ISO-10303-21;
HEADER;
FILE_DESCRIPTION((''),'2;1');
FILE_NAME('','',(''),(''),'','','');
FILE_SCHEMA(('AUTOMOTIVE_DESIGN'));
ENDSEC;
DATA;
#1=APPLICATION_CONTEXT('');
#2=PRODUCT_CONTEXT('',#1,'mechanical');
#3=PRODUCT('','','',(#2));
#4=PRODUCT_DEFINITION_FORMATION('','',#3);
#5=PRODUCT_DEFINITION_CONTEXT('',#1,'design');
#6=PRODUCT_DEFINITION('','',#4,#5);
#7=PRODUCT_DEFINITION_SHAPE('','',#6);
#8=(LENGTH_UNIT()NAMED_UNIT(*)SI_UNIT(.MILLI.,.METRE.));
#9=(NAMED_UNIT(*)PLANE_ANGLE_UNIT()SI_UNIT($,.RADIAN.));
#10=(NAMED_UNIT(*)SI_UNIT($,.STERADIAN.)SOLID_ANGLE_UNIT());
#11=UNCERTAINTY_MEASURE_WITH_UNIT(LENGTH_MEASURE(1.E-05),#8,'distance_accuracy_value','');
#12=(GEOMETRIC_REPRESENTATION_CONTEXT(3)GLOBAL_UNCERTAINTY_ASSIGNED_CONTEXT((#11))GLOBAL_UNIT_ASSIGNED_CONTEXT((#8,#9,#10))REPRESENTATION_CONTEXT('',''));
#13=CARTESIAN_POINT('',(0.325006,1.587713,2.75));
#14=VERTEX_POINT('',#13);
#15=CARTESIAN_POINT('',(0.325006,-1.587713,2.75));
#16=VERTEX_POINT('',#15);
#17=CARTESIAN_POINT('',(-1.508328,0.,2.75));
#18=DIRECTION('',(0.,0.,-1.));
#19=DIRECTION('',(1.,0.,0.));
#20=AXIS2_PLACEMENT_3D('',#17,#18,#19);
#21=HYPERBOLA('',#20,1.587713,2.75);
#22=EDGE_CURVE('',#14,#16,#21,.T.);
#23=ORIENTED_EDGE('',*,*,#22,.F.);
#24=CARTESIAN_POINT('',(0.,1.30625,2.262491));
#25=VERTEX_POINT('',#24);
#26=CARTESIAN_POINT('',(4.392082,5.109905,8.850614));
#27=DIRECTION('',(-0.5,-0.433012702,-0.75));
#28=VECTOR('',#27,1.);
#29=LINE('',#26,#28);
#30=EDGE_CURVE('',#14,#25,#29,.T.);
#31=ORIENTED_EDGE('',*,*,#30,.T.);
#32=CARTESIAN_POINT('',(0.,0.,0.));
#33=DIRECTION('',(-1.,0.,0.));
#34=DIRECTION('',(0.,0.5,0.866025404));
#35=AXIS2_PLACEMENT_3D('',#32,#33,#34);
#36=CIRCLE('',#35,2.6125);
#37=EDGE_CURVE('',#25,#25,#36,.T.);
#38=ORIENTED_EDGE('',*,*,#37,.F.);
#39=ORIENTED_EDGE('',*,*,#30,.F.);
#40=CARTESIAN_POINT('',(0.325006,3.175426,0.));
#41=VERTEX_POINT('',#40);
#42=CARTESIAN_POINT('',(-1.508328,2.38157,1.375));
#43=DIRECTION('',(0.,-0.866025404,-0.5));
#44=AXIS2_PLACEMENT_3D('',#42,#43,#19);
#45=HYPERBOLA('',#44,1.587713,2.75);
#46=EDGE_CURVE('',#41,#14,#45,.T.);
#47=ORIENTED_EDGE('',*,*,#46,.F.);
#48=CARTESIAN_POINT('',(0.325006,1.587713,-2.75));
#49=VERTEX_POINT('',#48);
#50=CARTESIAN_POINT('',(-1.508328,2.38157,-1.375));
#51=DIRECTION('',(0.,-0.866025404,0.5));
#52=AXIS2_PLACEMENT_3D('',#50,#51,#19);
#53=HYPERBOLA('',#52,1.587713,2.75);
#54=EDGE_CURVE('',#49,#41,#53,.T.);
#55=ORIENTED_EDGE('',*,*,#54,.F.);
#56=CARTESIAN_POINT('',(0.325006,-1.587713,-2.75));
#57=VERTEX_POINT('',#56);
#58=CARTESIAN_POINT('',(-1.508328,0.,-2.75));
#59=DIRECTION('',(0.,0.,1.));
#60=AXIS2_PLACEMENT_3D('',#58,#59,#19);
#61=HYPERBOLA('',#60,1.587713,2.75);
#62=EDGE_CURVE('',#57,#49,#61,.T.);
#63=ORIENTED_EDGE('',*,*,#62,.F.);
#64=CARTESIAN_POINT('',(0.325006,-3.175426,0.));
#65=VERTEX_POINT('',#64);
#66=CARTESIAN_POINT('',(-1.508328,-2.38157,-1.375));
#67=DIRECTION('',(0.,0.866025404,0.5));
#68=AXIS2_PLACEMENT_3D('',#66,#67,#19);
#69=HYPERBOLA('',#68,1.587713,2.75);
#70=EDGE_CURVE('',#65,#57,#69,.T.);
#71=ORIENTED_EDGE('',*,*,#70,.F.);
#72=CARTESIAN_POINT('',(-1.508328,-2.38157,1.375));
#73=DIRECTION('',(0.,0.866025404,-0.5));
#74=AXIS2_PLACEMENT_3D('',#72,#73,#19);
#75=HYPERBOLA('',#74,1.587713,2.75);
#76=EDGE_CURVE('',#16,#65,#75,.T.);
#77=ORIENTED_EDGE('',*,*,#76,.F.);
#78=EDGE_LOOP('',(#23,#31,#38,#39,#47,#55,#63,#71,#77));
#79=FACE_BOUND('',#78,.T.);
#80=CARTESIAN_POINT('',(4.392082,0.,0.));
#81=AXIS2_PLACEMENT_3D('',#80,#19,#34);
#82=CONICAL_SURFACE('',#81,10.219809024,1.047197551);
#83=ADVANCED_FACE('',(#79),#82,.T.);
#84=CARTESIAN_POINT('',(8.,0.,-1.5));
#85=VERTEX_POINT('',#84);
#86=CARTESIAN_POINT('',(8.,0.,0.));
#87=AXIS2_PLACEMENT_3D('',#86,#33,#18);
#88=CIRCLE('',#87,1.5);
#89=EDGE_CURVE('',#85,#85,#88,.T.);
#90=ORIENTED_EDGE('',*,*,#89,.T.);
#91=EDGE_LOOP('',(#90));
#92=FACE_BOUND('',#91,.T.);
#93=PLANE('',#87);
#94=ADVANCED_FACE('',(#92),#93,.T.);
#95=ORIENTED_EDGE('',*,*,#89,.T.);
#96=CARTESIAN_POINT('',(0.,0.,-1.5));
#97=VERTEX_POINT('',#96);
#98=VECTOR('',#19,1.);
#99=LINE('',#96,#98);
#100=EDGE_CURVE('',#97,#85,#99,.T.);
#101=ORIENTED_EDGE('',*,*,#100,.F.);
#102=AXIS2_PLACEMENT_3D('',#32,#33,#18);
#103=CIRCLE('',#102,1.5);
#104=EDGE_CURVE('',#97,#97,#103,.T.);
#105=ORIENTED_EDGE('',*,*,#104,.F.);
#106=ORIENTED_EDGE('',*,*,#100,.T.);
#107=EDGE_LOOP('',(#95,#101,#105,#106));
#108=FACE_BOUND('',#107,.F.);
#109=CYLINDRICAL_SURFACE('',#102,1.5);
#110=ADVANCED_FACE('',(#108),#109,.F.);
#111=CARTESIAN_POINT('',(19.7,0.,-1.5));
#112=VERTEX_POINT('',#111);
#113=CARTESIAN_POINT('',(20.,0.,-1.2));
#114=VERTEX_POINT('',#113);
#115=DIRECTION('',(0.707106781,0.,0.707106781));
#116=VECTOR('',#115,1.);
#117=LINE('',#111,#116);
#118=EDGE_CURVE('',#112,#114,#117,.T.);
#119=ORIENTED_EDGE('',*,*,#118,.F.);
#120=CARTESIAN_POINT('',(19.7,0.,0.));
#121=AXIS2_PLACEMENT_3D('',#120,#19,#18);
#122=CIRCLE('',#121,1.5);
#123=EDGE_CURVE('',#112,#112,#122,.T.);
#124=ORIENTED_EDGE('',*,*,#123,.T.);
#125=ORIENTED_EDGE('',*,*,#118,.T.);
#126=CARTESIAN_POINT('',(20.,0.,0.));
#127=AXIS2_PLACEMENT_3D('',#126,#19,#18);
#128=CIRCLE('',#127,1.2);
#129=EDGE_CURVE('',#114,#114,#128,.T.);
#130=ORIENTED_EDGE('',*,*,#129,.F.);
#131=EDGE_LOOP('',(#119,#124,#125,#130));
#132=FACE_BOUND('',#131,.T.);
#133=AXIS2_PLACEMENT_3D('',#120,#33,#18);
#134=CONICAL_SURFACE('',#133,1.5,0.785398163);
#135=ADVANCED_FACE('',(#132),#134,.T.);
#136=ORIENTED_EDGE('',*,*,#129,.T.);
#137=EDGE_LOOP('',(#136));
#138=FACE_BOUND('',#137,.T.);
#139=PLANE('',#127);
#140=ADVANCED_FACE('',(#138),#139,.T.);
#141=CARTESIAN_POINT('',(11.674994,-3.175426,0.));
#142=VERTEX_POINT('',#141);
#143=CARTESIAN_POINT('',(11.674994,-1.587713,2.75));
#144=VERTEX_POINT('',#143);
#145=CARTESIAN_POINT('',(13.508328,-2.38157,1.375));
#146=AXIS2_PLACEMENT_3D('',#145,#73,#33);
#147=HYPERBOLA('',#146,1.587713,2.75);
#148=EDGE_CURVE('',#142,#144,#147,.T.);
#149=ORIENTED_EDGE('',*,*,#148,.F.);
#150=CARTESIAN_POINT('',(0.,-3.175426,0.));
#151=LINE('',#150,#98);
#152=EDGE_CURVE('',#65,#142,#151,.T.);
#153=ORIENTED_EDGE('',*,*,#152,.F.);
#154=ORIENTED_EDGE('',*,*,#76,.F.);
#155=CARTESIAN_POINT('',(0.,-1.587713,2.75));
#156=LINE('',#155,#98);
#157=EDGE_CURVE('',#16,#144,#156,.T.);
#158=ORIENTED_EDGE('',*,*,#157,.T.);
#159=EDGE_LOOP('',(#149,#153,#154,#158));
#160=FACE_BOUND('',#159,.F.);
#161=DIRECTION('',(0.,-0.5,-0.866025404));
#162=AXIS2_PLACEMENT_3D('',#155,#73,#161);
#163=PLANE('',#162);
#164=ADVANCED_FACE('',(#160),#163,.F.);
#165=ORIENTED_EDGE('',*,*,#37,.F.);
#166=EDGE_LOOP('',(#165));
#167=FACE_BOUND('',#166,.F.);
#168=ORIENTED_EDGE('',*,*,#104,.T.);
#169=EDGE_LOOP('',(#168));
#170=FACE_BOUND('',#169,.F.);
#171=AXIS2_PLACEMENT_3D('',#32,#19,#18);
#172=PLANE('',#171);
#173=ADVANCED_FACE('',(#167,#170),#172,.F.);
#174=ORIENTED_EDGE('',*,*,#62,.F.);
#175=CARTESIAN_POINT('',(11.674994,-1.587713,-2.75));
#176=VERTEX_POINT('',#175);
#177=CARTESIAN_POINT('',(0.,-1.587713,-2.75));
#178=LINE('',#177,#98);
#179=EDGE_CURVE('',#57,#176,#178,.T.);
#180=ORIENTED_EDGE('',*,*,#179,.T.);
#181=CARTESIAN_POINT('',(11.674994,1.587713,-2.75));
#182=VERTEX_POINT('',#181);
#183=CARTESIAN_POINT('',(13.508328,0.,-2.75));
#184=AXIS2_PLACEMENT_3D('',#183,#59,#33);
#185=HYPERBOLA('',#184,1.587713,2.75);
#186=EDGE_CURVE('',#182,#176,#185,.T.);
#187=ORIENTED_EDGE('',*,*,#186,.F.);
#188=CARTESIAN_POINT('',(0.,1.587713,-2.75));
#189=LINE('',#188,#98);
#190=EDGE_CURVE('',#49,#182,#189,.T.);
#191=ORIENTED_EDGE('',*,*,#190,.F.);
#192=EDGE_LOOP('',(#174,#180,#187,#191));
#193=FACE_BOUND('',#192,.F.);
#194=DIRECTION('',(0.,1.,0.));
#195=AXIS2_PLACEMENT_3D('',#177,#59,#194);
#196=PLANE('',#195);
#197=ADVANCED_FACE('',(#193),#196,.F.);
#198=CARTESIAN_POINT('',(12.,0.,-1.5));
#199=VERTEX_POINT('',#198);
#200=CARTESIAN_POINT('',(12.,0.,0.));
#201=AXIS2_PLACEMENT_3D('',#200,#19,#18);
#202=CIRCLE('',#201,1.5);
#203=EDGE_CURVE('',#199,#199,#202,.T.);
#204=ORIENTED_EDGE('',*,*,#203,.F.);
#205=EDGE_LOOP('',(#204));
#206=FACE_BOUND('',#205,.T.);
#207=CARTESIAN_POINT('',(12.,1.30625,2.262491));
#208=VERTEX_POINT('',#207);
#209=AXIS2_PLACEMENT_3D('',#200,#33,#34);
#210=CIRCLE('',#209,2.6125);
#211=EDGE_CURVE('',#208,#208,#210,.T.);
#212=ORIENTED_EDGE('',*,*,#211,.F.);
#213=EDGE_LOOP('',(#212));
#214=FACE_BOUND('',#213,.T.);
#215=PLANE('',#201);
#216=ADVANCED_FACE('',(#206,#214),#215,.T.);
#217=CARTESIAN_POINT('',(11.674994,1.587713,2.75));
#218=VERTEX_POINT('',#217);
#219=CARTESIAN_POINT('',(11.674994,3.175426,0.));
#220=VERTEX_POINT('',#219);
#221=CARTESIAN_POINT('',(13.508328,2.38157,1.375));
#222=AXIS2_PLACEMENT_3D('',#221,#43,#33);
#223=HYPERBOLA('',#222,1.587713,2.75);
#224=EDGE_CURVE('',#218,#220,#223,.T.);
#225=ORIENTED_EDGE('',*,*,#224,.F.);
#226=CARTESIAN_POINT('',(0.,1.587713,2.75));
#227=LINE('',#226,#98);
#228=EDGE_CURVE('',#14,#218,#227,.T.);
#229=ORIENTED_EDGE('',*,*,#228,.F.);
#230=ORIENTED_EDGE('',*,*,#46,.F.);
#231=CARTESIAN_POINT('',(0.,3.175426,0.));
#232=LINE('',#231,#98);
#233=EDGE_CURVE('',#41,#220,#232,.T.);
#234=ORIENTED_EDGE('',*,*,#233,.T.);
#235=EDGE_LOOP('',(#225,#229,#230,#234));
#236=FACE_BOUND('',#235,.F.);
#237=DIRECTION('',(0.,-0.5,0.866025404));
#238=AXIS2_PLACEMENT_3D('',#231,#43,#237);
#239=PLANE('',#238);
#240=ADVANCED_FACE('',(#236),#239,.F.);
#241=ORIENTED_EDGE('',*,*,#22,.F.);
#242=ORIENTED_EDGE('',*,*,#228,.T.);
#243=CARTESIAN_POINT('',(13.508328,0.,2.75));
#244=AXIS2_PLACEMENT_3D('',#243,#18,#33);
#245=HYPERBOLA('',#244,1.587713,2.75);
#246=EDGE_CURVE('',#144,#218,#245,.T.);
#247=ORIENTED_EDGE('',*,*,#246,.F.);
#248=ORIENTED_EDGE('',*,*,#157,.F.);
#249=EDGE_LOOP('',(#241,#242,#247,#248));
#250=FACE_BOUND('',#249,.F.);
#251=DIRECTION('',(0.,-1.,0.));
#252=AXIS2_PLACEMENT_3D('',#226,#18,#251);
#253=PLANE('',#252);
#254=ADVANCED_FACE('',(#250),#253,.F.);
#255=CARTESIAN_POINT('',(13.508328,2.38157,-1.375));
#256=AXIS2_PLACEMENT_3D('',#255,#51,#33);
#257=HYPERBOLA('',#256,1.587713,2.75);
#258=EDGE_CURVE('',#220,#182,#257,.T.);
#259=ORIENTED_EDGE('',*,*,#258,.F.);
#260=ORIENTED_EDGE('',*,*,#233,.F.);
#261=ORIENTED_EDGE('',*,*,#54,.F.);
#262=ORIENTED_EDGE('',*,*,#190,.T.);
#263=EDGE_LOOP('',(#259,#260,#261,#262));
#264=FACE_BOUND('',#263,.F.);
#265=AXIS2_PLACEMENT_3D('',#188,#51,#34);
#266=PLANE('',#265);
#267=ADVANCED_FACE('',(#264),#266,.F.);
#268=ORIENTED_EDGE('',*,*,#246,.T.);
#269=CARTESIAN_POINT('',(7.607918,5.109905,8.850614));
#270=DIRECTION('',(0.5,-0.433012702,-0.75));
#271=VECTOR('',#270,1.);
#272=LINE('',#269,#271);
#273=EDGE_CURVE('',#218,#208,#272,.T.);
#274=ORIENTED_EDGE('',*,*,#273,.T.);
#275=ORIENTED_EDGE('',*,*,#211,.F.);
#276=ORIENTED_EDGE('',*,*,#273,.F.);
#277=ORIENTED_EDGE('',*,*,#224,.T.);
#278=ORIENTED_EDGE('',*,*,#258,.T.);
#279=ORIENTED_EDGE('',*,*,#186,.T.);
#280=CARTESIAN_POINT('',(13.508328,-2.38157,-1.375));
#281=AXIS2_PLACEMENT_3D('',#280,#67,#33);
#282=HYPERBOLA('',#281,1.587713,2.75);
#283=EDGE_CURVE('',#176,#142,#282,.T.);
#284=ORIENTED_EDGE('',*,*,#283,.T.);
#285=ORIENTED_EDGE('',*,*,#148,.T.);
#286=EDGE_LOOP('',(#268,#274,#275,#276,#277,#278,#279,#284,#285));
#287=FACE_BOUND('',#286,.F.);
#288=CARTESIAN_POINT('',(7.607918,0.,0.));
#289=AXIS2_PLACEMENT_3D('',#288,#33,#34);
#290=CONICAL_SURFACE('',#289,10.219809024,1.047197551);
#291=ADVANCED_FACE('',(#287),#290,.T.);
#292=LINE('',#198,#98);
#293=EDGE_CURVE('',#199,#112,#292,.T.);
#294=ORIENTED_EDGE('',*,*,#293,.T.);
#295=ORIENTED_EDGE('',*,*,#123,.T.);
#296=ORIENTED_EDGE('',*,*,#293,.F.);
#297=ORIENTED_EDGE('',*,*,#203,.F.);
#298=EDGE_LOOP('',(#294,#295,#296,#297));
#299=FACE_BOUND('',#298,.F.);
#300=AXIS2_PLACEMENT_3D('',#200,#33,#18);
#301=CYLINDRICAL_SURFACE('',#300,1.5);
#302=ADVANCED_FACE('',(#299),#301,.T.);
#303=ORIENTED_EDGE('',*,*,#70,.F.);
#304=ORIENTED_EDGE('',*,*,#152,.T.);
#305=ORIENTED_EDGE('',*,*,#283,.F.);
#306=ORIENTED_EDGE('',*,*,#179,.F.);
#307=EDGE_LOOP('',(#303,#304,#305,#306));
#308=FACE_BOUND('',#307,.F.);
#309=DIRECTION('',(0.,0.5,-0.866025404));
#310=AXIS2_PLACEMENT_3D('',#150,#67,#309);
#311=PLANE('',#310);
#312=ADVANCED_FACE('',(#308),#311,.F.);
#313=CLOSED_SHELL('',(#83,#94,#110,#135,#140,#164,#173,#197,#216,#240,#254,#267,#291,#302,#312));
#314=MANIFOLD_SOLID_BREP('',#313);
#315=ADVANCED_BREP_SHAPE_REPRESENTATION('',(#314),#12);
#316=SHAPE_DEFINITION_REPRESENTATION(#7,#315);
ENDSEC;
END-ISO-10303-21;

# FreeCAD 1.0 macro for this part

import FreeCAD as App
import Part
import Sketcher
from FreeCAD import Vector
Q = App.Units.Quantity


def edges_at(feature, points):
    """Names of the edges that pass closest to the given points."""
    edges = feature.Shape.Edges
    near = lambda p: min(range(len(edges)), key=lambda i: edges[i].distToShape(Part.Vertex(*p))[0])
    return sorted({f"Edge{near(p) + 1}" for p in points})


def add_polygon(sketch, points):
    """Adds a closed chain of lines whose ends are joined by coincident constraints."""
    first, n = sketch.GeometryCount, len(points)
    for a, b in zip(points, points[1:] + points[:1]):
        sketch.addGeometry(Part.LineSegment(App.Vector(*a, 0), App.Vector(*b, 0)), False)
    for i in range(n):
        sketch.addConstraint(Sketcher.Constraint("Coincident", first + i, 2, first + (i + 1) % n, 1))

doc = App.newDocument("Part")
body = doc.addObject("PartDesign::Body", "Body")

# Sketch on YZ plane
sketch1 = body.newObject("Sketcher::SketchObject", "Sketch")
sketch1.AttachmentSupport = (doc.getObject("YZ_Plane"), [""])
sketch1.MapMode = "FlatFace"
add_polygon(sketch1, [(3.2, 0), (1.6, 2.8), (-1.6, 2.8), (-3.2, 0), (-1.6, -2.8), (1.6, -2.8)])  # lines 0-5
sketch1.addConstraint([
    Sketcher.Constraint("Horizontal", 1),
    Sketcher.Constraint("Horizontal", 4),
    Sketcher.Constraint("Symmetric", 0, 2, 3, 2, -1, 1),
    Sketcher.Constraint("Symmetric", 2, 2, 5, 2, -1, 1),
    Sketcher.Constraint("PointOnObject", 2, 2, -1),
    Sketcher.Constraint("Parallel", 2, 5),
    Sketcher.Constraint("Vertical", 1, 2, 3, 2),
    Sketcher.Constraint("Angle", 0, Q("120 deg")),
    Sketcher.Constraint("DistanceY", 3, 2, 1, 2, Q("5.5 mm")),
    Sketcher.Constraint("DistanceX", 1, 2, 1, 1, Q("3.175426 mm")),
])
pad1 = body.newObject("PartDesign::Pad", "Pad")
pad1.Profile = sketch1
pad1.Length = 12

# Sketch on YZ plane
sketch2 = body.newObject("Sketcher::SketchObject", "Sketch001")
sketch2.AttachmentSupport = (doc.getObject("YZ_Plane"), [""])
sketch2.MapMode = "FlatFace"
sketch2.AttachmentOffset = App.Placement(Vector(0, 0, 12), App.Rotation())
sketch2.addGeometry(Part.Circle(Vector(0, 0, 0), Vector(0, 0, 1), 1.5), False)
sketch2.addConstraint([
    Sketcher.Constraint("Coincident", 0, 3, -1, 1),
    Sketcher.Constraint("Diameter", 0, Q("3 mm")),
])
pad2 = body.newObject("PartDesign::Pad", "Pad001")
pad2.Profile = sketch2
pad2.Length = 8

# Sketch on YZ plane
sketch3 = body.newObject("Sketcher::SketchObject", "Sketch002")
sketch3.AttachmentSupport = (doc.getObject("YZ_Plane"), [""])
sketch3.MapMode = "FlatFace"
sketch3.addGeometry(Part.Circle(Vector(0, 0, 0), Vector(0, 0, 1), 1.5), False)
sketch3.addConstraint([
    Sketcher.Constraint("Coincident", 0, 3, -1, 1),
    Sketcher.Constraint("Diameter", 0, Q("3 mm")),
])
pocket1 = body.newObject("PartDesign::Pocket", "Pocket")
pocket1.Profile = sketch3
pocket1.Length = 8
pocket1.Reversed = True

# Sketch on XZ plane
sketch4 = body.newObject("Sketcher::SketchObject", "Sketch003")
sketch4.AttachmentSupport = (doc.getObject("XZ_Plane"), [""])
sketch4.MapMode = "FlatFace"
add_polygon(sketch4, [(4.4, -10.2), (0, -10.2), (0, -2.6)])  # lines 0-2
add_polygon(sketch4, [(12, -2.6), (12, -10.2), (7.6, -10.2)])  # lines 3-5
sketch4.addConstraint([
    Sketcher.Constraint("Horizontal", 0),
    Sketcher.Constraint("Vertical", 1),
    Sketcher.Constraint("Vertical", 3),
    Sketcher.Constraint("Horizontal", 4),
    Sketcher.Constraint("PointOnObject", 0, 2, -2),
    Sketcher.Constraint("Horizontal", 2, 2, 3, 2),
    Sketcher.Constraint("Horizontal", 1, 2, 5, 2),
    Sketcher.Constraint("Equal", 0, 4),
    Sketcher.Constraint("Angle", 2, Q("-60 deg")),
    Sketcher.Constraint("DistanceX", -1, 1, 3, 2, Q("12 mm")),
    Sketcher.Constraint("DistanceX", 0, 2, 0, 1, Q("4.392082 mm")),
    Sketcher.Constraint("DistanceY", 1, 2, -1, 1, Q("2.6125 mm")),
])
groove = body.newObject("PartDesign::Groove", "Groove")
groove.Profile = sketch4
groove.ReferenceAxis = (sketch4, ["H_Axis"])
groove.Angle = 360
doc.recompute()

chamfer = body.newObject("PartDesign::Chamfer", "Chamfer")
chamfer.Base = (groove, edges_at(groove, [(20, 0, 1.5)]))
chamfer.Size = 0.3

doc.recompute()
